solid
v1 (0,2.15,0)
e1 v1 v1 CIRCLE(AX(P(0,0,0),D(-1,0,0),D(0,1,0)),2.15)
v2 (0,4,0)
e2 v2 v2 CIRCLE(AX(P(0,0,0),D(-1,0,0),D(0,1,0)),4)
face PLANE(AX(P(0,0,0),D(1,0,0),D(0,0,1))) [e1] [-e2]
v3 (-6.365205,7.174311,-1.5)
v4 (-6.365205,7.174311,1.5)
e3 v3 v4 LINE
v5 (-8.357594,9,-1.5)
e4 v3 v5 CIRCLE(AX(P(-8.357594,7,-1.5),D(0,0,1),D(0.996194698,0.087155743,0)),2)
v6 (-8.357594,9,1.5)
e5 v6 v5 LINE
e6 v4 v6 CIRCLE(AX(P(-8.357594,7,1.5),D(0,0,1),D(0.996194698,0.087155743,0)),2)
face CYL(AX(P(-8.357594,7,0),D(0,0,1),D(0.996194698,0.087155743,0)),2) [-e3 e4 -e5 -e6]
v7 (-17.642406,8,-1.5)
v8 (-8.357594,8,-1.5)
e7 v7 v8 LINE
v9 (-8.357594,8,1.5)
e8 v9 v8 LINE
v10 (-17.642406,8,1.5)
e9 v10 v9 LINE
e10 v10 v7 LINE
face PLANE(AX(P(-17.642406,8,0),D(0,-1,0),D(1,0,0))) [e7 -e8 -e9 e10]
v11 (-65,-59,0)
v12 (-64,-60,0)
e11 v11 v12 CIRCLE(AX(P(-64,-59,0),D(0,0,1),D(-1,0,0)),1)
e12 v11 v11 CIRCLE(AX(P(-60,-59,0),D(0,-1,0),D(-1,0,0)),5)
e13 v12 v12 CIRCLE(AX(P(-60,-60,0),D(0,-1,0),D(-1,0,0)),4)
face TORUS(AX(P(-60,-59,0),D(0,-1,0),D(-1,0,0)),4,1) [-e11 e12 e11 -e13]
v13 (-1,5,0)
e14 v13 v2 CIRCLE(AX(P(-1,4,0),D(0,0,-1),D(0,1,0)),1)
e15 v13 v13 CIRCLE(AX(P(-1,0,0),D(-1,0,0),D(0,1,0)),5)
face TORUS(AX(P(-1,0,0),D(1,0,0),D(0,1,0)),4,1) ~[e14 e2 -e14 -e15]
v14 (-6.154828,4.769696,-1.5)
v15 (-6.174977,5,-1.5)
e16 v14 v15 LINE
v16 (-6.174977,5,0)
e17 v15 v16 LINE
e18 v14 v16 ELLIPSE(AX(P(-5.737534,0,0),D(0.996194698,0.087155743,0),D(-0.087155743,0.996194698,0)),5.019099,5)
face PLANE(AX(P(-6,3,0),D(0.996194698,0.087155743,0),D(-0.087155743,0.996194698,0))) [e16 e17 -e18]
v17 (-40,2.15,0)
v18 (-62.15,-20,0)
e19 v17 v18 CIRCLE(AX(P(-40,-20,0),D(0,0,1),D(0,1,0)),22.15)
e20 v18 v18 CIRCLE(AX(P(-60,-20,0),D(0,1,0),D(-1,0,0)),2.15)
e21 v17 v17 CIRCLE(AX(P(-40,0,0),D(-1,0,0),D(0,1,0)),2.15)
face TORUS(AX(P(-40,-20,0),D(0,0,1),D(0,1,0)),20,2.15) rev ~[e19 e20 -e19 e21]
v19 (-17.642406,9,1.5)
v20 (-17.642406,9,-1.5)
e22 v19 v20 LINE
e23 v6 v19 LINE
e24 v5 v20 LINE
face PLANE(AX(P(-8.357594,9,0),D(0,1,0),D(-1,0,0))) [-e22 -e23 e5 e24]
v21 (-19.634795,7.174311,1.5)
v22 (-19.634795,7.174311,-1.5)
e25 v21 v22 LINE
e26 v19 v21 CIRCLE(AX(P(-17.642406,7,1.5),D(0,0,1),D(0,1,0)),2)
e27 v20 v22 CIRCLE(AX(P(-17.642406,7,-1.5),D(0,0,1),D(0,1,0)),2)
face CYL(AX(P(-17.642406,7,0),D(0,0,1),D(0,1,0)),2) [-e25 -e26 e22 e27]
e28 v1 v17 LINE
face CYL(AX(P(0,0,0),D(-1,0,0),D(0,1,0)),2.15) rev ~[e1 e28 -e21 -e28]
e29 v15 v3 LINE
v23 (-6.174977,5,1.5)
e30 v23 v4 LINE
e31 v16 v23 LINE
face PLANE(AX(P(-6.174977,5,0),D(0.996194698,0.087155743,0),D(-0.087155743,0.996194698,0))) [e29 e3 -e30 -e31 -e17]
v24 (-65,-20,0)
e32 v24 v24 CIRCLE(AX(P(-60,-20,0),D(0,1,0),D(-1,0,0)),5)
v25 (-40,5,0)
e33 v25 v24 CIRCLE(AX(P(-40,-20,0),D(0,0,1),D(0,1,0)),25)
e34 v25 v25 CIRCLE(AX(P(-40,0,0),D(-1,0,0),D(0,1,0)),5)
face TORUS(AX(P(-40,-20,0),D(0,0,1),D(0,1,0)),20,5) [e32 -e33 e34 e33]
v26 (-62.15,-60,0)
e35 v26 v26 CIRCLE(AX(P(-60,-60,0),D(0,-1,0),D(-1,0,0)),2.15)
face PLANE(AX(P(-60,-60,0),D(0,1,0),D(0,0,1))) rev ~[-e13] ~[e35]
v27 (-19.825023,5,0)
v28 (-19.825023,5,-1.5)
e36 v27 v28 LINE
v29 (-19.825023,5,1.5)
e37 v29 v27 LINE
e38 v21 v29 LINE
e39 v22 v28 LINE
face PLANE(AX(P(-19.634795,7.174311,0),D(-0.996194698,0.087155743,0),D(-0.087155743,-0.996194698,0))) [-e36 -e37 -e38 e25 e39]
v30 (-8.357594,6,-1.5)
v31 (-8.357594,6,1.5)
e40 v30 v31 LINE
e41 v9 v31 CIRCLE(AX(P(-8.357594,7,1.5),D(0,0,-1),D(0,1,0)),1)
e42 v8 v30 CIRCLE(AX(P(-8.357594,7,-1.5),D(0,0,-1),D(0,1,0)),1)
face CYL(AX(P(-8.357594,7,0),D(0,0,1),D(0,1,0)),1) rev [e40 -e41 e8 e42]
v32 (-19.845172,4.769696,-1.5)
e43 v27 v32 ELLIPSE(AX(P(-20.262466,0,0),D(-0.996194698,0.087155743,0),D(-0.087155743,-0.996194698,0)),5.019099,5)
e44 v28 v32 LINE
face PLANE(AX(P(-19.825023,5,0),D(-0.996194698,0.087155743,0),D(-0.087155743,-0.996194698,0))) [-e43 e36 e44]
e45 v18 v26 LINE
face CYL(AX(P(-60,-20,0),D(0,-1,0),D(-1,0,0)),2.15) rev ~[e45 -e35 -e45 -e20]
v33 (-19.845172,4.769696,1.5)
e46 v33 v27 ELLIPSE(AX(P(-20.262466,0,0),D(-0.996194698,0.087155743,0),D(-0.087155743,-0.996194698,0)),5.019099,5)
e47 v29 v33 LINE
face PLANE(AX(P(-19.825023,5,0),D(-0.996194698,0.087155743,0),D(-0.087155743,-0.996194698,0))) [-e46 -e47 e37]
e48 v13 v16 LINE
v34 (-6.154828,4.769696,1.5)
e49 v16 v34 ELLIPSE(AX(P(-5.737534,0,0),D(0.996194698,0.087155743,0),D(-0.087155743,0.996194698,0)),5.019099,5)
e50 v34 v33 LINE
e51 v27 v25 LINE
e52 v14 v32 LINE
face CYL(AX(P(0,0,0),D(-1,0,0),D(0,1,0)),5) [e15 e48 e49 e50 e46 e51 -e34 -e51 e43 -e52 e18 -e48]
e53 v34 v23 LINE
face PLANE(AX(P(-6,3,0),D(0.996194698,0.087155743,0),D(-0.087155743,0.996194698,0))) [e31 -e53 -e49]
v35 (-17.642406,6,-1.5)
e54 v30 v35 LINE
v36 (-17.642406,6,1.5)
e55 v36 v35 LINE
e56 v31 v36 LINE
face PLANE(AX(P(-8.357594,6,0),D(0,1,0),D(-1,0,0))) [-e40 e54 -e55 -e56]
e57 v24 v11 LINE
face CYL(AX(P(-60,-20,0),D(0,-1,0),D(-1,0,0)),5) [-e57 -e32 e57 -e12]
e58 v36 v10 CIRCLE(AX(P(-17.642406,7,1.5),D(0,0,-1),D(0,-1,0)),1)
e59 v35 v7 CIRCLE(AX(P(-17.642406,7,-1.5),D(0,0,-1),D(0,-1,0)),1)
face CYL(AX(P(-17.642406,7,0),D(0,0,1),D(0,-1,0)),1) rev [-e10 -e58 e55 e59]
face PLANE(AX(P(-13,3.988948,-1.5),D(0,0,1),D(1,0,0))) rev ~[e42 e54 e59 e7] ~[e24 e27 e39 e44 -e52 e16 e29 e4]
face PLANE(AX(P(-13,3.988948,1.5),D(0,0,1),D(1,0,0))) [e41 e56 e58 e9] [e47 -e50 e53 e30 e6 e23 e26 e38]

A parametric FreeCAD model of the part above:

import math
import FreeCAD as App
import Part
import Sketcher
Q = App.Units.Quantity


def edges_at(feature, points):
    """Names of the edges that pass closest to the given points."""
    edges = feature.Shape.Edges
    near = lambda p: min(range(len(edges)), key=lambda i: edges[i].distToShape(Part.Vertex(*p))[0])
    return sorted({f"Edge{near(p) + 1}" for p in points})

doc = App.newDocument("Part")
body = doc.addObject("PartDesign::Body", "Body")

sketch1 = doc.addObject("Sketcher::SketchObject", "Sketch")
body.addObject(sketch1)
sketch1.AttachmentSupport = (doc.YZ_Plane, [""])
sketch1.MapMode = "FlatFace"
sketch1.addGeometry([
    Part.Circle(App.Vector(0, 0, 0), App.Vector(0, 0, 1), 5),
    Part.Circle(App.Vector(0, 0, 0), App.Vector(0, 0, 1), 2.15),
], False)
sketch1.addConstraint([
    Sketcher.Constraint("Coincident", 0, 3, -1, 1),
    Sketcher.Constraint("Coincident", 1, 3, -1, 1),
    Sketcher.Constraint("Diameter", 0, 10.0),
    Sketcher.Constraint("Diameter", 1, 4.3),
])

sketch2 = doc.addObject("Sketcher::SketchObject", "Sketch001")
body.addObject(sketch2)
sketch2.AttachmentSupport = (doc.XY_Plane, [""])
sketch2.MapMode = "FlatFace"
sketch2.addGeometry([
    Part.LineSegment(App.Vector(0, 0, 0), App.Vector(-40, 0, 0)),
    Part.ArcOfCircle(Part.Circle(App.Vector(-40, -20, 0), App.Vector(0, 0, 1), 20), math.radians(90), math.radians(180)),
    Part.LineSegment(App.Vector(-60, -20, 0), App.Vector(-60, -60, 0)),
], False)
sketch2.addConstraint([
    Sketcher.Constraint("Tangent", 0, 2, 1, 1),
    Sketcher.Constraint("Tangent", 1, 2, 2, 1),
    Sketcher.Constraint("Horizontal", 0),
    Sketcher.Constraint("Vertical", 2),
    Sketcher.Constraint("Coincident", 0, 1, -1, 1),
    Sketcher.Constraint("Equal", 0, 2),
    Sketcher.Constraint("Radius", 1, 20.0),
    Sketcher.Constraint("DistanceX", 0, 2, 0, 1, 40.0),
])
doc.recompute()

additivepipe = doc.addObject("PartDesign::AdditivePipe", "AdditivePipe")
body.addObject(additivepipe)
additivepipe.Profile = sketch1
additivepipe.Spine = (sketch2, ["Edge1", "Edge2", "Edge3"])
doc.recompute()

fillet = doc.addObject("PartDesign::Fillet", "Fillet")
body.addObject(fillet)
fillet.Base = (additivepipe, edges_at(additivepipe, [(-55, -60, 0), (0, -5, 0)]))
fillet.Radius = 1

sketch3 = doc.addObject("Sketcher::SketchObject", "Sketch002")
body.addObject(sketch3)
sketch3.AttachmentSupport = (doc.XY_Plane, [""])
sketch3.MapMode = "FlatFace"
sketch3.addGeometry([
    Part.LineSegment(App.Vector(-19.825023, 5, 0), App.Vector(-20, 3, 0)),
    Part.LineSegment(App.Vector(-20, 3, 0), App.Vector(-6, 3, 0)),
    Part.LineSegment(App.Vector(-6, 3, 0), App.Vector(-6.174977, 5, 0)),
    Part.LineSegment(App.Vector(-6.174977, 5, 0), App.Vector(-6.365205, 7.174311, 0)),
    Part.ArcOfCircle(Part.Circle(App.Vector(-8.357594, 7, 0), App.Vector(0, 0, 1), 2), math.radians(5), math.radians(90)),
    Part.LineSegment(App.Vector(-8.357594, 9, 0), App.Vector(-17.642406, 9, 0)),
    Part.ArcOfCircle(Part.Circle(App.Vector(-17.642406, 7, 0), App.Vector(0, 0, 1), 2), math.radians(90), math.radians(175)),
    Part.LineSegment(App.Vector(-19.634795, 7.174311, 0), App.Vector(-19.825023, 5, 0)),
    Part.ArcOfCircle(Part.Circle(App.Vector(-8.357594, 7, 0), App.Vector(0, 0, 1), 1), math.radians(-90), math.radians(90)),
    Part.LineSegment(App.Vector(-8.357594, 6, 0), App.Vector(-17.642406, 6, 0)),
    Part.ArcOfCircle(Part.Circle(App.Vector(-17.642406, 7, 0), App.Vector(0, 0, 1), 1), math.radians(90), math.radians(270)),
    Part.LineSegment(App.Vector(-17.642406, 8, 0), App.Vector(-8.357594, 8, 0)),
], False)
sketch3.addConstraint([
    Sketcher.Constraint("Coincident", 0, 2, 1, 1),
    Sketcher.Constraint("Coincident", 1, 2, 2, 1),
    Sketcher.Constraint("Coincident", 2, 2, 3, 1),
    Sketcher.Constraint("Tangent", 3, 2, 4, 1),
    Sketcher.Constraint("Tangent", 4, 2, 5, 1),
    Sketcher.Constraint("Tangent", 5, 2, 6, 1),
    Sketcher.Constraint("Tangent", 6, 2, 7, 1),
    Sketcher.Constraint("Coincident", 7, 2, 0, 1),
    Sketcher.Constraint("Tangent", 8, 1, 9, 1),
    Sketcher.Constraint("Tangent", 9, 2, 10, 2),
    Sketcher.Constraint("Tangent", 10, 1, 11, 1),
    Sketcher.Constraint("Tangent", 11, 2, 8, 2),
    Sketcher.Constraint("Horizontal", 1),
    Sketcher.Constraint("Horizontal", 5),
    Sketcher.Constraint("Horizontal", 9),
    Sketcher.Constraint("Horizontal", 11),
    Sketcher.Constraint("Coincident", 8, 3, 4, 3),
    Sketcher.Constraint("Coincident", 10, 3, 6, 3),
    Sketcher.Constraint("Parallel", 2, 3),
    Sketcher.Constraint("Parallel", 0, 7),
    Sketcher.Constraint("Horizontal", 3, 2, 6, 2),
    Sketcher.Constraint("Horizontal", 2, 2, 7, 2),
    Sketcher.Constraint("Radius", 4, 2.0),
    Sketcher.Constraint("Radius", 8, 1.0),
    Sketcher.Constraint("DistanceX", 1, 1, 1, 2, 14.0),
    Sketcher.Constraint("Angle", 0, Q("-95 deg")),
    Sketcher.Constraint("DistanceY", -1, 1, 4, 3, 7.0),
    Sketcher.Constraint("DistanceX", 0, 2, -1, 1, 20.0),
    Sketcher.Constraint("DistanceY", -1, 1, 0, 2, 3.0),
    Sketcher.Constraint("DistanceY", -1, 1, 2, 2, 5.0),
])
pad1 = doc.addObject("PartDesign::Pad", "Pad")
body.addObject(pad1)
pad1.Profile = sketch3
pad1.Length = 3
pad1.Midplane = True

doc.recompute()
